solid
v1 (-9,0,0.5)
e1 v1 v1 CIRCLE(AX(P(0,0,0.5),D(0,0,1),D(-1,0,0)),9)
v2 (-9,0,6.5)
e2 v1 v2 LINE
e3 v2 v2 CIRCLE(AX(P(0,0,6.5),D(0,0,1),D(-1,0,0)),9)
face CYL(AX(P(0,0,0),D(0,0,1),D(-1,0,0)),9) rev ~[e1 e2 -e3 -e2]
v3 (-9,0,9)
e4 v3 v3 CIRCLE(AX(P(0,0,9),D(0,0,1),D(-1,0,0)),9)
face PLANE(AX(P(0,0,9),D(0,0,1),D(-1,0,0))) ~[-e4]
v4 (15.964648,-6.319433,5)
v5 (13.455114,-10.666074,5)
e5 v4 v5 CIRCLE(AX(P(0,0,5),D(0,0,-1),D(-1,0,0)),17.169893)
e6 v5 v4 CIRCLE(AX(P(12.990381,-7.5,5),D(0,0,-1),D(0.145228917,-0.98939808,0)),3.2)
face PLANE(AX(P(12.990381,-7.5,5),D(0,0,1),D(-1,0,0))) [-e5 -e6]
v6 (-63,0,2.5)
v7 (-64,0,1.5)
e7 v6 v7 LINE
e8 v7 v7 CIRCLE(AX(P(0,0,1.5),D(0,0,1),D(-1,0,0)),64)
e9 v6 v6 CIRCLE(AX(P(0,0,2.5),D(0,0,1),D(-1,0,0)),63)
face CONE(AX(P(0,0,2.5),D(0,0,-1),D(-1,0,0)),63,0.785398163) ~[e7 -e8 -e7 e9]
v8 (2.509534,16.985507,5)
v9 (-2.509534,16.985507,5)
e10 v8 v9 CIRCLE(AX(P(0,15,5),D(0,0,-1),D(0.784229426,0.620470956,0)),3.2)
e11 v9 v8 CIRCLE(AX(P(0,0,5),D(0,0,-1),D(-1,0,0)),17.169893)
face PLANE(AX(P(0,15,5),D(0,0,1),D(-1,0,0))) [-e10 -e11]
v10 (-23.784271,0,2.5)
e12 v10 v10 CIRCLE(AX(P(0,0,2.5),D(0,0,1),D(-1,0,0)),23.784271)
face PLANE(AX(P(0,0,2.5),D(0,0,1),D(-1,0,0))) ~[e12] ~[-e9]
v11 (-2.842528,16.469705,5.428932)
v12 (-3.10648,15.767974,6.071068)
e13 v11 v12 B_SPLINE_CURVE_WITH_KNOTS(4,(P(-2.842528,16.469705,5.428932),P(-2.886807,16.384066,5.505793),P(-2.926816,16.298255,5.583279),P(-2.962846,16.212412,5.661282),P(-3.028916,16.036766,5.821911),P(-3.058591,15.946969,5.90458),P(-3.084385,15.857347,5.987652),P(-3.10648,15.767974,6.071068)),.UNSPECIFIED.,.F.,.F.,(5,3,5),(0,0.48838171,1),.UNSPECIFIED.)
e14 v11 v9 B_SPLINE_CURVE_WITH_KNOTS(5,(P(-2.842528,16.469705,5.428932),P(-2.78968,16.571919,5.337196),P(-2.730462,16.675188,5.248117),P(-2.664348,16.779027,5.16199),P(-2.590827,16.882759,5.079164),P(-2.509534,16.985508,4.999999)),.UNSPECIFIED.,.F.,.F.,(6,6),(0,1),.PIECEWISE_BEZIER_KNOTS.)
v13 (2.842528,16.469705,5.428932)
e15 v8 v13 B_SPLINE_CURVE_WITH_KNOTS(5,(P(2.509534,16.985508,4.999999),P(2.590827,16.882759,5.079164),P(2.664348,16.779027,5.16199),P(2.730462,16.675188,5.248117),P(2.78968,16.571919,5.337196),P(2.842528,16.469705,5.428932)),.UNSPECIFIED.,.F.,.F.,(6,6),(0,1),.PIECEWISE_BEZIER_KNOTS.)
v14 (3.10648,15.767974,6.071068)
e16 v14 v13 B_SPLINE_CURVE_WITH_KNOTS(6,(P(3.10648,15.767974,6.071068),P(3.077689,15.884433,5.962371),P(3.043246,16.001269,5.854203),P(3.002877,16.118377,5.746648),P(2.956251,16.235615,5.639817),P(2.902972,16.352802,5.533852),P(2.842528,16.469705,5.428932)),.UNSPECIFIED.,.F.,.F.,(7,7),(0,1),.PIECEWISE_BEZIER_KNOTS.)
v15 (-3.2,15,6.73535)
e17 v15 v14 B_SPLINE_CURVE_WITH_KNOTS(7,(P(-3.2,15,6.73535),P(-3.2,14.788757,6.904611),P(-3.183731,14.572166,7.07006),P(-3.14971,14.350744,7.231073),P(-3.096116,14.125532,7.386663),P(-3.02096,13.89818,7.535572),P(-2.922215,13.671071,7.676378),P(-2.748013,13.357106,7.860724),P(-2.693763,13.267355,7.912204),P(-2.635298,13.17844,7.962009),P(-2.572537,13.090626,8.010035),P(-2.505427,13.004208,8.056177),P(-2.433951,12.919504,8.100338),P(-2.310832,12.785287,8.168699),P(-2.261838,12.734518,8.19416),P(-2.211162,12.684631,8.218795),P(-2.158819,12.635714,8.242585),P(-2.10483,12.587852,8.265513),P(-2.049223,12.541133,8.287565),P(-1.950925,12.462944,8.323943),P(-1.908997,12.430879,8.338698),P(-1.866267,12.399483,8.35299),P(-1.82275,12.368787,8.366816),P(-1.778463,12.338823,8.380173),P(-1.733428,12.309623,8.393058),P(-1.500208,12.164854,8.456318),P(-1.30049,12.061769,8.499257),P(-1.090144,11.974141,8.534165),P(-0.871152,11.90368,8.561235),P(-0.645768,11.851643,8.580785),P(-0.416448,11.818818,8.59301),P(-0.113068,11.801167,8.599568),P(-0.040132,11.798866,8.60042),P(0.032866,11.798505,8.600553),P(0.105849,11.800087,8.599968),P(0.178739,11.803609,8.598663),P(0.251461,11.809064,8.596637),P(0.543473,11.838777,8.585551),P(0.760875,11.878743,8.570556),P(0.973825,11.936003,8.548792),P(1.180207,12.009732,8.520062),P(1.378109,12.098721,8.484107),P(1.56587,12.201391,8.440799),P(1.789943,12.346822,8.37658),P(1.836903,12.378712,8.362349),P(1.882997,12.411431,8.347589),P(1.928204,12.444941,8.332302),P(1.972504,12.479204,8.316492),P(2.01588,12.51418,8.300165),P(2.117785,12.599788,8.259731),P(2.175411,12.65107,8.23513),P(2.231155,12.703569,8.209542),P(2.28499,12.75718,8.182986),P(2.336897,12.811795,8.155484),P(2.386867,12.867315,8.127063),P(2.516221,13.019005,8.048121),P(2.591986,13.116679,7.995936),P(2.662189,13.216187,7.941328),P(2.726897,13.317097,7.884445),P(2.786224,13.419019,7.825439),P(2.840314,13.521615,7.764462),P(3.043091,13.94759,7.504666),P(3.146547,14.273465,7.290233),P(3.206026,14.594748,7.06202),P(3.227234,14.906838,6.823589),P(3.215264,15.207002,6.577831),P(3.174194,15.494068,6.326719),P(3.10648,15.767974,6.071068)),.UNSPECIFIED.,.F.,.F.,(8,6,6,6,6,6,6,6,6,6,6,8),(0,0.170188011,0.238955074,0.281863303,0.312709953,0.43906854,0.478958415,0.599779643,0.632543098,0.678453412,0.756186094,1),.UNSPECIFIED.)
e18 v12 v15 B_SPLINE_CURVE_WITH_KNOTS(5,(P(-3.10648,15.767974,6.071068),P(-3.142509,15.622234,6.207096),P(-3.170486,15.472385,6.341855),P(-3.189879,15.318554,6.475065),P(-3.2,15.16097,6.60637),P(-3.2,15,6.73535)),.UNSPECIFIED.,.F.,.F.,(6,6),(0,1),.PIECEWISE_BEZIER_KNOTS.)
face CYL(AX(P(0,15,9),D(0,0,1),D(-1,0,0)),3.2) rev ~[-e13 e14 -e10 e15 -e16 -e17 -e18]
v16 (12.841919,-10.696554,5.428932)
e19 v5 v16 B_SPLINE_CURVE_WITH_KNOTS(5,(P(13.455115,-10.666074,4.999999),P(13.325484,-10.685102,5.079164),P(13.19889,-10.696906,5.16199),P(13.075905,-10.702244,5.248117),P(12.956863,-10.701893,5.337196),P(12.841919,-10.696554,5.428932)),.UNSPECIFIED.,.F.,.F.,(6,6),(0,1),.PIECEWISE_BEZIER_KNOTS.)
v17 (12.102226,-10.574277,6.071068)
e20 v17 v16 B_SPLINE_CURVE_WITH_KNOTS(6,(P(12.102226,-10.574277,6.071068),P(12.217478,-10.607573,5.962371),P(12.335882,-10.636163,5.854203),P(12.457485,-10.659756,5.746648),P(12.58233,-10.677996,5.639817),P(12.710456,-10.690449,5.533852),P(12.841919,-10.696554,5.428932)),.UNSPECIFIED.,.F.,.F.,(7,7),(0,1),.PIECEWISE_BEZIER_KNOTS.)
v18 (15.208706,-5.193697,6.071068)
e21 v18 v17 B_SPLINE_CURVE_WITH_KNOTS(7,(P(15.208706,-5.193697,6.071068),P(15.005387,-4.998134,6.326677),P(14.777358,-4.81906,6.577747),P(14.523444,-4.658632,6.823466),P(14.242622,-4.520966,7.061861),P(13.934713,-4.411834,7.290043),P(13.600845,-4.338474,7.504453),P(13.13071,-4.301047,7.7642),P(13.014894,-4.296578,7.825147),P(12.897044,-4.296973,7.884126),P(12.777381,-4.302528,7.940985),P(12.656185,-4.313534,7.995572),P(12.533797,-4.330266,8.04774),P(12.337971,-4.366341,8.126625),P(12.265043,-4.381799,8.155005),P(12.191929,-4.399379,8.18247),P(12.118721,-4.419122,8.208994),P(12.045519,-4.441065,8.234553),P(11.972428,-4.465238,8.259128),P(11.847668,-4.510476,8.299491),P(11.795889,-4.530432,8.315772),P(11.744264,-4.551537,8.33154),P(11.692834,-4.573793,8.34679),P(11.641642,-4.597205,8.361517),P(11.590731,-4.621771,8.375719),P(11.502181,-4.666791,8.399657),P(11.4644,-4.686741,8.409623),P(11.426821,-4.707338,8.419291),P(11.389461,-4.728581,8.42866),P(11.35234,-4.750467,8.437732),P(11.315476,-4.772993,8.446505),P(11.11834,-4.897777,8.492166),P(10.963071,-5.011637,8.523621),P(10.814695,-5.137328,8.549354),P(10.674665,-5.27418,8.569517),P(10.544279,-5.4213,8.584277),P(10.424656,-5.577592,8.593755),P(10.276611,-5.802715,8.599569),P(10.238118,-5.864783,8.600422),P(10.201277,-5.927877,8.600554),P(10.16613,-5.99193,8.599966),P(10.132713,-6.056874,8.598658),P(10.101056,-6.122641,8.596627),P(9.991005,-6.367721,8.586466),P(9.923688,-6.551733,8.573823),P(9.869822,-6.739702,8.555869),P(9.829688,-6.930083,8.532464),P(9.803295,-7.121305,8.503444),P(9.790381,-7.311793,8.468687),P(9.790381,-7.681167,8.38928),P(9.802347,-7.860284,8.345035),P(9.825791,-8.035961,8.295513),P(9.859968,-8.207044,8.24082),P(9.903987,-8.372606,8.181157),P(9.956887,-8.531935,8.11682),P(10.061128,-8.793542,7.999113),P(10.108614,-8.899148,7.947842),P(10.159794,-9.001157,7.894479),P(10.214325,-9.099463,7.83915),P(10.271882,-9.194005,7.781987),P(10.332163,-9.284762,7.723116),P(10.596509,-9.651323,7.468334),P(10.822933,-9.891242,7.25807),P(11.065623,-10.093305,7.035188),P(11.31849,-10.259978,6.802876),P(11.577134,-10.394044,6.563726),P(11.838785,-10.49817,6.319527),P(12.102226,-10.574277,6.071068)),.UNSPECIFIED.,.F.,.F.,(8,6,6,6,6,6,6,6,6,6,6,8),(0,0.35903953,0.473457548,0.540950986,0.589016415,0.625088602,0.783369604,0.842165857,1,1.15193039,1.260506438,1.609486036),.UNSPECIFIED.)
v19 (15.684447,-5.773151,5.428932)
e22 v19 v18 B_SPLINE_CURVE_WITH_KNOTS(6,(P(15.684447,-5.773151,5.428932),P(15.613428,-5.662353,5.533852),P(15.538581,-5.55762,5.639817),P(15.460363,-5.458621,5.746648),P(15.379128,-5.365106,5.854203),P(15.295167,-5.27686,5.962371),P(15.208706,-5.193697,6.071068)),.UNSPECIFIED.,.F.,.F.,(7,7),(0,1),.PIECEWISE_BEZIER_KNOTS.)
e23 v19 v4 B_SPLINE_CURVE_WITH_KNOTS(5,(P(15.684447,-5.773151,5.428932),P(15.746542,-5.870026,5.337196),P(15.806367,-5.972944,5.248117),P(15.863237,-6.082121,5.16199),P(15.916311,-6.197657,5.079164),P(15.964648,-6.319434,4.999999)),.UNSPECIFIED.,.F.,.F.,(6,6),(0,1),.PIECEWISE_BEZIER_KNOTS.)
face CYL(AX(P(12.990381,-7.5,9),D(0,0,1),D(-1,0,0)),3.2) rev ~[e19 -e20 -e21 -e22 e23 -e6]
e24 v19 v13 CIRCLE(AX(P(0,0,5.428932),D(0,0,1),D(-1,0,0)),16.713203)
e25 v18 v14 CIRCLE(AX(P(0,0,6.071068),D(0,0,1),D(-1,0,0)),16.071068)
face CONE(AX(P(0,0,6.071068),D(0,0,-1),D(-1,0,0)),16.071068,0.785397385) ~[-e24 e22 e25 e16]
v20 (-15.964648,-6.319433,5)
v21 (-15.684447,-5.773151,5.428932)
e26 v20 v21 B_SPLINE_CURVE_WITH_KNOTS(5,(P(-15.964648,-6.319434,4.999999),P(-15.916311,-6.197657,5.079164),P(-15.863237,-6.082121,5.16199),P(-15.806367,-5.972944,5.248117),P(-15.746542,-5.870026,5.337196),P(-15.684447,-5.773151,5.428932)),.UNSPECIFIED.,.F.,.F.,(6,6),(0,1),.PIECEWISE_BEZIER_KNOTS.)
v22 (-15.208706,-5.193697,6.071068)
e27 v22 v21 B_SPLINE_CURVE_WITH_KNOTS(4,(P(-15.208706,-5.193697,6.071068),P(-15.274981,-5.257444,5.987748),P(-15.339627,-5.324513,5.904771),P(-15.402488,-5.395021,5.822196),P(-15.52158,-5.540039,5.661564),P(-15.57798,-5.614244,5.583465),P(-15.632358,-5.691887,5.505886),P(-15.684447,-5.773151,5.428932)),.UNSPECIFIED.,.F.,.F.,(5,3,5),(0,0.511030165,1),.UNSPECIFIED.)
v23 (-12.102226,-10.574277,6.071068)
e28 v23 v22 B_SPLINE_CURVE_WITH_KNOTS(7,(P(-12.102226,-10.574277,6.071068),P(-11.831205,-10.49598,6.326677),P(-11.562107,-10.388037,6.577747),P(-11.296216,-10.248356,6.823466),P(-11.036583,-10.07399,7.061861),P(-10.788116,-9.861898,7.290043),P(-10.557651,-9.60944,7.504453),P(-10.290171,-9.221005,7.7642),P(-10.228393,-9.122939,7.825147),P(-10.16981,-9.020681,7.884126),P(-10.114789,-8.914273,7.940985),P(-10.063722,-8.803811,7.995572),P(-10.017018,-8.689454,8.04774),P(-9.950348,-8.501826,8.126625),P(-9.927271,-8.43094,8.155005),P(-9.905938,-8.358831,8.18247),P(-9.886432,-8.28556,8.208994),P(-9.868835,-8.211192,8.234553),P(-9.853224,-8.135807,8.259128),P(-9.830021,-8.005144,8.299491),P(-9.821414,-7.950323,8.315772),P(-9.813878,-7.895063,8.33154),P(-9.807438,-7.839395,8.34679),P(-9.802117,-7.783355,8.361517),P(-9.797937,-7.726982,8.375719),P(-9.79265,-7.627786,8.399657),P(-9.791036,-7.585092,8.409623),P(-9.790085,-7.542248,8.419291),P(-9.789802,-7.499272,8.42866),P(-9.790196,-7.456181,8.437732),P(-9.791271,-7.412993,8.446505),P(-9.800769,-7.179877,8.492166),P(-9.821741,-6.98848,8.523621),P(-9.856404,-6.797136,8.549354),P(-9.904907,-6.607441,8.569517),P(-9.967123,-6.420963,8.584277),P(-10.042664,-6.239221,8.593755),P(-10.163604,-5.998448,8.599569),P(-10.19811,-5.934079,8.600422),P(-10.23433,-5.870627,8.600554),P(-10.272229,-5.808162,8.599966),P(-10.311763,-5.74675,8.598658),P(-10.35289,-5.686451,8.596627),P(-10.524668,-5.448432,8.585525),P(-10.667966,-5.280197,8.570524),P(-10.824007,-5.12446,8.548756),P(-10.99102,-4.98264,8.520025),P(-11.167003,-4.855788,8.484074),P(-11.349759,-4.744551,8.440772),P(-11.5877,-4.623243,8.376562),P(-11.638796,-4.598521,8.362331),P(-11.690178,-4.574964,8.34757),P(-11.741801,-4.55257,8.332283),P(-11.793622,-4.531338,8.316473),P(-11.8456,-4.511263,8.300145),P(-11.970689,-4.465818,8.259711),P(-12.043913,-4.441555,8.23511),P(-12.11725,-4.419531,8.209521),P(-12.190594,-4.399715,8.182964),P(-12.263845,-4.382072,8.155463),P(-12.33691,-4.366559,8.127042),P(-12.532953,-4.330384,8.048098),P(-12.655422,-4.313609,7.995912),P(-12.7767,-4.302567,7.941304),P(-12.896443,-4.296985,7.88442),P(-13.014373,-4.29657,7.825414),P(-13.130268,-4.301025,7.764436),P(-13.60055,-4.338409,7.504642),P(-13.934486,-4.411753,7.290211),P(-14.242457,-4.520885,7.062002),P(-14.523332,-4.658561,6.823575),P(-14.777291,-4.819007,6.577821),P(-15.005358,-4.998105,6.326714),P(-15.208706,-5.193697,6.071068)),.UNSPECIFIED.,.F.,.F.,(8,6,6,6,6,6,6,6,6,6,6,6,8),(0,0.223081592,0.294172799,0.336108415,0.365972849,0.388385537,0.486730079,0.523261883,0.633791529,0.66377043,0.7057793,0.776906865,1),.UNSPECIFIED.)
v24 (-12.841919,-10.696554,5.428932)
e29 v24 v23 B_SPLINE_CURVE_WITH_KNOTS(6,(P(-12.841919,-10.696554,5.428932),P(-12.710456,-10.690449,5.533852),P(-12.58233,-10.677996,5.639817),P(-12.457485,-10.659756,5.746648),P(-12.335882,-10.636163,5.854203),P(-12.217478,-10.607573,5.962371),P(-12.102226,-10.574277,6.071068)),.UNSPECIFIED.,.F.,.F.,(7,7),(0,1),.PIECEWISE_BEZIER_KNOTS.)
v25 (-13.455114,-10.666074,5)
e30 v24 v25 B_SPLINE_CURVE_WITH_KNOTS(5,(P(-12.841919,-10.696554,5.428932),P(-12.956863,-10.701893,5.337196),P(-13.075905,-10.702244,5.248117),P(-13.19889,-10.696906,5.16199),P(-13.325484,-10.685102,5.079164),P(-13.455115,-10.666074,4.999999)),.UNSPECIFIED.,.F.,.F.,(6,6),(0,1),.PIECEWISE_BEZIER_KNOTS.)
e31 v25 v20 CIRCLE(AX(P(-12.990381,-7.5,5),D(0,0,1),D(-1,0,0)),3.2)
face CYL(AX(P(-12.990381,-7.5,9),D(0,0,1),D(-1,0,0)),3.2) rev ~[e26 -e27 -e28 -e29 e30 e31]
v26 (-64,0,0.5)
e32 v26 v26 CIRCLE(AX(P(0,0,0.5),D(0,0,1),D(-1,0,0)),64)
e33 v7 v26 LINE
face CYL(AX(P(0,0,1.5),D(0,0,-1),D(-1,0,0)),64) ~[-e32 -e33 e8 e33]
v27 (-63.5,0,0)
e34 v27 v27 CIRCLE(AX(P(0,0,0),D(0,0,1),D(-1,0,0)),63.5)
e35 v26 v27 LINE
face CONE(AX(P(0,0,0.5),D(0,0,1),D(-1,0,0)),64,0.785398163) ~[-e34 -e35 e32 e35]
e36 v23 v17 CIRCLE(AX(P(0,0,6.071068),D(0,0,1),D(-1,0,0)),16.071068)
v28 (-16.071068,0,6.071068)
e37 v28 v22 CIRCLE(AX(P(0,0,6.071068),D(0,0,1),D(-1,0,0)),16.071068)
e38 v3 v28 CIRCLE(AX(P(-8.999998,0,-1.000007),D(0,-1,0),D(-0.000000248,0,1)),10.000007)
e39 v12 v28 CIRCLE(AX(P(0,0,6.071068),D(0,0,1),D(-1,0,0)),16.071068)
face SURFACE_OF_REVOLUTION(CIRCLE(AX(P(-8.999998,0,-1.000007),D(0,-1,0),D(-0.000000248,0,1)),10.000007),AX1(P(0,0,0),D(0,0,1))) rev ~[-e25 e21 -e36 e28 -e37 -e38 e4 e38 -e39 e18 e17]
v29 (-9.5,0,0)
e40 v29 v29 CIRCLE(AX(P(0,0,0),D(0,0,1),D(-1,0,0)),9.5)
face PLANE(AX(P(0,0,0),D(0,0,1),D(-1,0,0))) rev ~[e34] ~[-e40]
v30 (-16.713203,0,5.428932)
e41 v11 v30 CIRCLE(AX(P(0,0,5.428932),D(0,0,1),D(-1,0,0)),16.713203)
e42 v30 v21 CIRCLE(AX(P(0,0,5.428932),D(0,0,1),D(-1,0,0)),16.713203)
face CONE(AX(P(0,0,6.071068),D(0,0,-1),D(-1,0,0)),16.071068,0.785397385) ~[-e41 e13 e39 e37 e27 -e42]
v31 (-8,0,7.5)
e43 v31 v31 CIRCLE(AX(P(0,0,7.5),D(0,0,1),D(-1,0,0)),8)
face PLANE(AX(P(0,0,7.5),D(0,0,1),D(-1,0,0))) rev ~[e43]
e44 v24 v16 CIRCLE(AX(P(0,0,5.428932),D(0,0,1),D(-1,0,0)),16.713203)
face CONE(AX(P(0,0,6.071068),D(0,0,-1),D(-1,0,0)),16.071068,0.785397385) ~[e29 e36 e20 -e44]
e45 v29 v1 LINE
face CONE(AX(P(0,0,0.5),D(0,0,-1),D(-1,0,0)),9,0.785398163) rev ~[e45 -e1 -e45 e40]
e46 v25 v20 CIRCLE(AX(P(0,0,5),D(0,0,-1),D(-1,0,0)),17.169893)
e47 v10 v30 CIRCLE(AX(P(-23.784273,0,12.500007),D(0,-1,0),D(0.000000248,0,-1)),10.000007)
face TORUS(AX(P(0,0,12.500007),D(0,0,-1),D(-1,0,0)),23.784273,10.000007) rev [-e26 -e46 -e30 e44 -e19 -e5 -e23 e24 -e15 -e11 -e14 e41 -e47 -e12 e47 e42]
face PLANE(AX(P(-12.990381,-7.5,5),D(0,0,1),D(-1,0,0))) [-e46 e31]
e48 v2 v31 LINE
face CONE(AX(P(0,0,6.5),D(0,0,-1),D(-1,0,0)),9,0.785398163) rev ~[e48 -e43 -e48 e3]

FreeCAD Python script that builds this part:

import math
import FreeCAD as App
import Part
import Sketcher
from FreeCAD import Vector
Q = App.Units.Quantity


def edges_at(feature, points):
    """Names of the edges that pass closest to the given points."""
    edges = feature.Shape.Edges
    near = lambda p: min(range(len(edges)), key=lambda i: edges[i].distToShape(Part.Vertex(*p))[0])
    return sorted({f"Edge{near(p) + 1}" for p in points})

doc = App.newDocument("Part")
body = doc.addObject("PartDesign::Body", "Body")

sketch1 = doc.addObject("Sketcher::SketchObject", "Sketch")
body.addObject(sketch1)
sketch1.AttachmentSupport = (doc.XZ_Plane, [""])
sketch1.MapMode = "FlatFace"
sketch1.addGeometry(Part.LineSegment(Vector(-63.5, 0, 0), Vector(-9, 0, 0)), False)
sketch1.addGeometry(Part.LineSegment(Vector(-9, 0, 0), Vector(-9, 6.5, 0)), False)
sketch1.addGeometry(Part.LineSegment(Vector(-9, 6.5, 0), Vector(-8, 7.5, 0)), False)
sketch1.addGeometry(Part.LineSegment(Vector(-8, 7.5, 0), Vector(0, 7.5, 0)), False)
sketch1.addGeometry(Part.LineSegment(Vector(0, 7.5, 0), Vector(0, 9, 0)), False)
sketch1.addGeometry(Part.LineSegment(Vector(0, 9, 0), Vector(-9, 9, 0)), False)
sketch1.addGeometry(Part.ArcOfCircle(Part.Circle(Vector(-9, -1, 0), Vector(0, 0, 1), 10), math.radians(90), math.radians(135)), False)
sketch1.addGeometry(Part.LineSegment(Vector(-16.1, 6.1, 0), Vector(-16.7, 5.4, 0)), False)
sketch1.addGeometry(Part.ArcOfCircle(Part.Circle(Vector(-23.8, 12.5, 0), Vector(0, 0, 1), 10), math.radians(-90), math.radians(-45)), False)
sketch1.addGeometry(Part.LineSegment(Vector(-23.8, 2.5, 0), Vector(-63, 2.5, 0)), False)
sketch1.addGeometry(Part.LineSegment(Vector(-63, 2.5, 0), Vector(-64, 1.5, 0)), False)
sketch1.addGeometry(Part.LineSegment(Vector(-64, 1.5, 0), Vector(-64, 0.5, 0)), False)
sketch1.addGeometry(Part.LineSegment(Vector(-64, 0.5, 0), Vector(-63.5, 0, 0)), False)
sketch1.addConstraint(Sketcher.Constraint("Coincident", 0, 2, 1, 1))
sketch1.addConstraint(Sketcher.Constraint("Coincident", 1, 2, 2, 1))
sketch1.addConstraint(Sketcher.Constraint("Coincident", 2, 2, 3, 1))
sketch1.addConstraint(Sketcher.Constraint("Coincident", 3, 2, 4, 1))
sketch1.addConstraint(Sketcher.Constraint("Coincident", 4, 2, 5, 1))
sketch1.addConstraint(Sketcher.Constraint("Tangent", 5, 2, 6, 1))
sketch1.addConstraint(Sketcher.Constraint("Tangent", 6, 2, 7, 1))
sketch1.addConstraint(Sketcher.Constraint("Tangent", 7, 2, 8, 2))
sketch1.addConstraint(Sketcher.Constraint("Tangent", 8, 1, 9, 1))
sketch1.addConstraint(Sketcher.Constraint("Coincident", 9, 2, 10, 1))
sketch1.addConstraint(Sketcher.Constraint("Coincident", 10, 2, 11, 1))
sketch1.addConstraint(Sketcher.Constraint("Coincident", 11, 2, 12, 1))
sketch1.addConstraint(Sketcher.Constraint("Coincident", 12, 2, 0, 1))
sketch1.addConstraint(Sketcher.Constraint("Horizontal", 0))
sketch1.addConstraint(Sketcher.Constraint("Vertical", 1))
sketch1.addConstraint(Sketcher.Constraint("Horizontal", 3))
sketch1.addConstraint(Sketcher.Constraint("Vertical", 4))
sketch1.addConstraint(Sketcher.Constraint("Horizontal", 5))
sketch1.addConstraint(Sketcher.Constraint("Horizontal", 9))
sketch1.addConstraint(Sketcher.Constraint("Vertical", 11))
sketch1.addConstraint(Sketcher.Constraint("Equal", 6, 8))
sketch1.addConstraint(Sketcher.Constraint("PointOnObject", 0, 2, -1))
sketch1.addConstraint(Sketcher.Constraint("PointOnObject", 3, 2, -2))
sketch1.addConstraint(Sketcher.Constraint("Parallel", 2, 7))
sketch1.addConstraint(Sketcher.Constraint("Parallel", 7, 10))
sketch1.addConstraint(Sketcher.Constraint("Perpendicular", 10, 12))
sketch1.addConstraint(Sketcher.Constraint("Vertical", 1, 2, 5, 2))
sketch1.addConstraint(Sketcher.Constraint("Equal", 2, 10))
sketch1.addConstraint(Sketcher.Constraint("DistanceX", 3, 1, 3, 2, 8.0))
sketch1.addConstraint(Sketcher.Constraint("DistanceX", 5, 2, 5, 1, 9.0))
sketch1.addConstraint(Sketcher.Constraint("DistanceY", 11, 2, 11, 1, 1.0))
sketch1.addConstraint(Sketcher.Constraint("Angle", 2, Q("45 deg")))
sketch1.addConstraint(Sketcher.Constraint("DistanceX", 0, 1, 0, 2, 54.5))
sketch1.addConstraint(Sketcher.Constraint("DistanceY", 1, 1, 1, 2, 6.5))
sketch1.addConstraint(Sketcher.Constraint("DistanceY", 4, 1, 4, 2, 1.5))
sketch1.addConstraint(Sketcher.Constraint("DistanceX", 9, 2, -1, 1, 63.0))
sketch1.addConstraint(Sketcher.Constraint("Radius", 6, 10.000007))
revolution = doc.addObject("PartDesign::Revolution", "Revolution")
body.addObject(revolution)
revolution.Profile = sketch1
revolution.ReferenceAxis = (sketch1, ["V_Axis"])
revolution.Angle = 360
doc.recompute()

chamfer = doc.addObject("PartDesign::Chamfer", "Chamfer")
body.addObject(chamfer)
chamfer.Base = (revolution, edges_at(revolution, [(9, 0, 0)]))
chamfer.Size = 0.5

sketch2 = doc.addObject("Sketcher::SketchObject", "Sketch001")
body.addObject(sketch2)
sketch2.AttachmentSupport = (doc.XY_Plane, [""])
sketch2.MapMode = "FlatFace"
sketch2.AttachmentOffset = App.Placement(Vector(0, 0, 9), App.Rotation())
sketch2.addGeometry(Part.Circle(Vector(13, -7.5, 0), Vector(0, 0, 1), 3.2), False)
sketch2.addGeometry(Part.Circle(Vector(-13, -7.5, 0), Vector(0, 0, 1), 3.2), False)
sketch2.addGeometry(Part.Circle(Vector(0, 15, 0), Vector(0, 0, 1), 3.2), False)
sketch2.addConstraint(Sketcher.Constraint("Equal", 0, 1))
sketch2.addConstraint(Sketcher.Constraint("Equal", 1, 2))
sketch2.addConstraint(Sketcher.Constraint("Symmetric", 0, 3, 1, 3, -2))
sketch2.addConstraint(Sketcher.Constraint("PointOnObject", 2, 3, -2))
sketch2.addConstraint(Sketcher.Constraint("Diameter", 0, 6.4))
sketch2.addConstraint(Sketcher.Constraint("DistanceY", -1, 1, 2, 3, 15.0))
sketch2.addConstraint(Sketcher.Constraint("DistanceY", 0, 3, -1, 1, 7.5))
sketch2.addConstraint(Sketcher.Constraint("DistanceX", -1, 1, 0, 3, 12.990381))
pocket1 = doc.addObject("PartDesign::Pocket", "Pocket")
body.addObject(pocket1)
pocket1.Profile = sketch2
pocket1.Length = 4

doc.recompute()
